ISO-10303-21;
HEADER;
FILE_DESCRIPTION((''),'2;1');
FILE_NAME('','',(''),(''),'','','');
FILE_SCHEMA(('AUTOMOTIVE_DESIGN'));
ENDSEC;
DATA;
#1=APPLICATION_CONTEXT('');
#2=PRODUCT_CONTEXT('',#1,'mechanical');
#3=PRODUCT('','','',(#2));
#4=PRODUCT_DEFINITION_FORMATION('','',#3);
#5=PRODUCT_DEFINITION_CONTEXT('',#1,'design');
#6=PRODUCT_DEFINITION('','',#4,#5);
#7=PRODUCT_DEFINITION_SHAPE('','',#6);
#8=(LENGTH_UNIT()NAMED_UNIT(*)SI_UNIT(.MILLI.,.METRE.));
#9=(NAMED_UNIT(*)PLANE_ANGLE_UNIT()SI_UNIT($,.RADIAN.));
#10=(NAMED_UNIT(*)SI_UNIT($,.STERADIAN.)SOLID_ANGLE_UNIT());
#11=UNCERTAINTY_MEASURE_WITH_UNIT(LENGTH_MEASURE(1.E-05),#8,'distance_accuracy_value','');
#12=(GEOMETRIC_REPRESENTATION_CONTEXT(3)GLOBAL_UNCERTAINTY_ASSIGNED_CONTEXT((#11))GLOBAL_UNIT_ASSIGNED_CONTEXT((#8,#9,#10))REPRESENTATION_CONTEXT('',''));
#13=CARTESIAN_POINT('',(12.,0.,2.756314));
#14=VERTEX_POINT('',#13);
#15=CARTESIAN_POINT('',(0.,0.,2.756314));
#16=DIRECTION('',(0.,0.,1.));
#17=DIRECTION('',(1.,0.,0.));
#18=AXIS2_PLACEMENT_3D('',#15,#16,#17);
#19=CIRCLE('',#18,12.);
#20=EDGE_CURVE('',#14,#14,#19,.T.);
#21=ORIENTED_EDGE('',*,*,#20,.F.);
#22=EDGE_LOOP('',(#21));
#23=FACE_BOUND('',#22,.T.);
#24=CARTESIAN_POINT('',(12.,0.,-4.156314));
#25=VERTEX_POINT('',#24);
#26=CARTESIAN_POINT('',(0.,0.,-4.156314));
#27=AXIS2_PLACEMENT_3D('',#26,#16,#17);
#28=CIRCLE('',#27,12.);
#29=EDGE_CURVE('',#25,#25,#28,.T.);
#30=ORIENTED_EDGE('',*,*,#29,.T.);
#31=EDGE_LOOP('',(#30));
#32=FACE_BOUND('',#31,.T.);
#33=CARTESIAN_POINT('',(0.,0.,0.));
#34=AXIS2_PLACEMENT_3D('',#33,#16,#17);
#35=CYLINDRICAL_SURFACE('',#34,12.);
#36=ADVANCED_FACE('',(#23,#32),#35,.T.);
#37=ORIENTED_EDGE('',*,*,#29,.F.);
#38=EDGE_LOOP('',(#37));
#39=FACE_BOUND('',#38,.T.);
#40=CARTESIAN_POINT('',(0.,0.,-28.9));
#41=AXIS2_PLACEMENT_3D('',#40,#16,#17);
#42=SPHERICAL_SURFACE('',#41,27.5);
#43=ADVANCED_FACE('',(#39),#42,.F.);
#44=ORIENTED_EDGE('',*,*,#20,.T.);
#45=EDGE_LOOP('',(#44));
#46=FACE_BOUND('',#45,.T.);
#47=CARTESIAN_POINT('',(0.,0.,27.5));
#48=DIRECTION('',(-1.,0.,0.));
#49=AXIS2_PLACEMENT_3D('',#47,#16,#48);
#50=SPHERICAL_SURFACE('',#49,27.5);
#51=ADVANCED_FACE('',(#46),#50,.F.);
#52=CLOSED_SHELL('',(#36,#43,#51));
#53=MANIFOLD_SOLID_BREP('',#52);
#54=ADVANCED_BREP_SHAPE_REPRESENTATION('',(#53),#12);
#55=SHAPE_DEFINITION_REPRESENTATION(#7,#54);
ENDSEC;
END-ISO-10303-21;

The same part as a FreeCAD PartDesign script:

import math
import FreeCAD as App
import Part
import Sketcher

V = App.Vector

doc = App.newDocument("Part")
body = doc.addObject("PartDesign::Body", "Body")

# Sketch on XZ plane
sketch1 = doc.addObject("Sketcher::SketchObject", "Sketch")
body.addObject(sketch1)
sketch1.AttachmentSupport = (doc.XZ_Plane, [""])
sketch1.MapMode = "FlatFace"
sketch1.addGeometry([
    Part.LineSegment(V(0, 0, 0), V(0, -1.4, 0)),
    Part.ArcOfCircle(Part.Circle(V(0, -28.9, 0), V(0, 0, 1), 27.5), math.radians(90), math.radians(115.872096)),
    Part.LineSegment(V(-12, -4.156314, 0), V(-12, 2.756314, 0)),
    Part.ArcOfCircle(Part.Circle(V(0, 27.5, 0), V(0, 0, 1), 27.5), math.radians(-115.872096), math.radians(-90)),
], False)
sketch1.addConstraint([
    Sketcher.Constraint("Coincident", 0, 2, 1, 1),
    Sketcher.Constraint("Coincident", 1, 2, 2, 1),
    Sketcher.Constraint("Coincident", 2, 2, 3, 1),
    Sketcher.Constraint("Coincident", 3, 2, 0, 1),
    Sketcher.Constraint("Vertical", 0),
    Sketcher.Constraint("Vertical", 2),
    Sketcher.Constraint("Coincident", 3, 2, -1, 1),
    Sketcher.Constraint("Equal", 1, 3),
    Sketcher.Constraint("PointOnObject", 1, 3, -2),
    Sketcher.Constraint("PointOnObject", 3, 3, -2),
    Sketcher.Constraint("Radius", 1, 27.5),
    Sketcher.Constraint("DistanceY", 0, 2, 0, 1, 1.4),
    Sketcher.Constraint("DistanceX", 1, 2, -1, 1, 12.0),
])
revolution = doc.addObject("PartDesign::Revolution", "Revolution")
body.addObject(revolution)
revolution.Profile = sketch1
revolution.ReferenceAxis = (sketch1, ["V_Axis"])
revolution.Angle = 360

doc.recompute()
